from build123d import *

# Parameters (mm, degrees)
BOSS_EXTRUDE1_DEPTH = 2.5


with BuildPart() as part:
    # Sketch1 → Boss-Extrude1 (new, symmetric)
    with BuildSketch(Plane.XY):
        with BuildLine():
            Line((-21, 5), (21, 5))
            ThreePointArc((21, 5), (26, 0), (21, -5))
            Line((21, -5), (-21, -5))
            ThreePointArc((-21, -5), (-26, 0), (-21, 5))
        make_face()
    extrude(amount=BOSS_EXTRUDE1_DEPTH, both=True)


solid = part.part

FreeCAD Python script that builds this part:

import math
import FreeCAD as App
import Part
import Sketcher

V = App.Vector
Q = App.Units.Quantity

doc = App.newDocument("Part")
params = doc.addObject("Spreadsheet::Sheet", "Params")
for row, (alias, value) in enumerate([
    ("sketch1_radius", "5 mm"),
    ("sketch1_width", "42 mm"),
    ("pad1_length", "5 mm"),
], start=1):
    params.set(f"A{row}", alias)
    params.set(f"B{row}", "=" + value)
    params.setAlias(f"B{row}", alias)

body = doc.addObject("PartDesign::Body", "Body")

# Sketch on XY plane
sketch1 = doc.addObject("Sketcher::SketchObject", "Sketch")
body.addObject(sketch1)
sketch1.AttachmentSupport = (doc.XY_Plane, [""])
sketch1.MapMode = "FlatFace"
sketch1.addGeometry(Part.LineSegment(V(21, 5, 0), V(-21, 5, 0)), False)
sketch1.addGeometry(Part.ArcOfCircle(Part.Circle(V(-21, 0, 0), V(0, 0, 1), 5), math.radians(90), math.radians(270)), False)
sketch1.addGeometry(Part.LineSegment(V(-21, -5, 0), V(21, -5, 0)), False)
sketch1.addGeometry(Part.ArcOfCircle(Part.Circle(V(21, 0, 0), V(0, 0, 1), 5), math.radians(-90), math.radians(90)), False)
sketch1.addConstraint(Sketcher.Constraint("Tangent", 0, 2, 1, 1))
sketch1.addConstraint(Sketcher.Constraint("Tangent", 1, 2, 2, 1))
sketch1.addConstraint(Sketcher.Constraint("Tangent", 2, 2, 3, 1))
sketch1.addConstraint(Sketcher.Constraint("Tangent", 3, 2, 0, 1))
sketch1.addConstraint(Sketcher.Constraint("Horizontal", 0))
sketch1.addConstraint(Sketcher.Constraint("Horizontal", 2))
sketch1.addConstraint(Sketcher.Constraint("Symmetric", 1, 3, 3, 3, -1, 1))
sketch1.addConstraint(Sketcher.Constraint("Radius", 1, Q("5 mm")))
sketch1.addConstraint(Sketcher.Constraint("DistanceX", 0, 2, 0, 1, Q("42 mm")))
sketch1.setExpression("Constraints[7]", "Params.sketch1_radius")
sketch1.setExpression("Constraints[8]", "Params.sketch1_width")
pad1 = doc.addObject("PartDesign::Pad", "Pad")
body.addObject(pad1)
pad1.Profile = sketch1
pad1.setExpression("Length", "Params.pad1_length")
pad1.Midplane = True

doc.recompute()
